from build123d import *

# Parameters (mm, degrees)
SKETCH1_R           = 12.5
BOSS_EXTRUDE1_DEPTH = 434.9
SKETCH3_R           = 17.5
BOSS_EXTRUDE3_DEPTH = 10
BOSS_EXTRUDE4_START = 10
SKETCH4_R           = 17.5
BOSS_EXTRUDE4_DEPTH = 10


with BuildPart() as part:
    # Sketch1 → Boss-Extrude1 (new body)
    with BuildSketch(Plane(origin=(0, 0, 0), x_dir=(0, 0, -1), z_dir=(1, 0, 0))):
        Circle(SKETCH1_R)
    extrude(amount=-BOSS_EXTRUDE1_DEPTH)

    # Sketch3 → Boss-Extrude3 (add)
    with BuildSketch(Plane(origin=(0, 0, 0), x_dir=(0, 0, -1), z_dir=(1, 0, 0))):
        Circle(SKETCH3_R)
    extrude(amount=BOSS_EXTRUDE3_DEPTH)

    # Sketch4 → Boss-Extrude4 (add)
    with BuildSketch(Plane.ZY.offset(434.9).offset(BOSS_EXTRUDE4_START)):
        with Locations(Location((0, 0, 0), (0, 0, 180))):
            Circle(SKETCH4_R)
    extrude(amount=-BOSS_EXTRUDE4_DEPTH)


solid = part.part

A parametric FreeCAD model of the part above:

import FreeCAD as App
import Part
import Sketcher
from FreeCAD import Vector

doc = App.newDocument("Part")
body = doc.addObject("PartDesign::Body", "Body")

# Sketch on YZ plane
sketch1 = body.newObject("Sketcher::SketchObject", "Sketch")
sketch1.AttachmentSupport = (doc.getObject("YZ_Plane"), [""])
sketch1.MapMode = "FlatFace"
sketch1.addGeometry(Part.Circle(Vector(0, 0, 0), Vector(0, 0, 1), 12), False)
sketch1.addConstraint([
    Sketcher.Constraint("Coincident", 0, 3, -1, 1),
    Sketcher.Constraint("Diameter", 0, 25.0),
])
pad1 = body.newObject("PartDesign::Pad", "Pad")
pad1.Profile = sketch1
pad1.Length = 434.9
pad1.Reversed = True

# Sketch on YZ plane
sketch2 = body.newObject("Sketcher::SketchObject", "Sketch001")
sketch2.AttachmentSupport = (doc.getObject("YZ_Plane"), [""])
sketch2.MapMode = "FlatFace"
sketch2.addGeometry(Part.Circle(Vector(0, 0, 0), Vector(0, 0, 1), 18), False)
sketch2.addConstraint([
    Sketcher.Constraint("Coincident", 0, 3, -1, 1),
    Sketcher.Constraint("Diameter", 0, 35.0),
])
pad2 = body.newObject("PartDesign::Pad", "Pad001")
pad2.Profile = sketch2
pad2.Length = 10

# Sketch on YZ plane
sketch3 = body.newObject("Sketcher::SketchObject", "Sketch002")
sketch3.AttachmentSupport = (doc.getObject("YZ_Plane"), [""])
sketch3.MapMode = "FlatFace"
sketch3.AttachmentOffset = App.Placement(Vector(0, 0, -444.9), App.Rotation())
sketch3.addGeometry(Part.Circle(Vector(0, 0, 0), Vector(0, 0, 1), 18), False)
sketch3.addConstraint([
    Sketcher.Constraint("Coincident", 0, 3, -1, 1),
    Sketcher.Constraint("Diameter", 0, 35.0),
])
pad3 = body.newObject("PartDesign::Pad", "Pad002")
pad3.Profile = sketch3
pad3.Length = 10

doc.recompute()
